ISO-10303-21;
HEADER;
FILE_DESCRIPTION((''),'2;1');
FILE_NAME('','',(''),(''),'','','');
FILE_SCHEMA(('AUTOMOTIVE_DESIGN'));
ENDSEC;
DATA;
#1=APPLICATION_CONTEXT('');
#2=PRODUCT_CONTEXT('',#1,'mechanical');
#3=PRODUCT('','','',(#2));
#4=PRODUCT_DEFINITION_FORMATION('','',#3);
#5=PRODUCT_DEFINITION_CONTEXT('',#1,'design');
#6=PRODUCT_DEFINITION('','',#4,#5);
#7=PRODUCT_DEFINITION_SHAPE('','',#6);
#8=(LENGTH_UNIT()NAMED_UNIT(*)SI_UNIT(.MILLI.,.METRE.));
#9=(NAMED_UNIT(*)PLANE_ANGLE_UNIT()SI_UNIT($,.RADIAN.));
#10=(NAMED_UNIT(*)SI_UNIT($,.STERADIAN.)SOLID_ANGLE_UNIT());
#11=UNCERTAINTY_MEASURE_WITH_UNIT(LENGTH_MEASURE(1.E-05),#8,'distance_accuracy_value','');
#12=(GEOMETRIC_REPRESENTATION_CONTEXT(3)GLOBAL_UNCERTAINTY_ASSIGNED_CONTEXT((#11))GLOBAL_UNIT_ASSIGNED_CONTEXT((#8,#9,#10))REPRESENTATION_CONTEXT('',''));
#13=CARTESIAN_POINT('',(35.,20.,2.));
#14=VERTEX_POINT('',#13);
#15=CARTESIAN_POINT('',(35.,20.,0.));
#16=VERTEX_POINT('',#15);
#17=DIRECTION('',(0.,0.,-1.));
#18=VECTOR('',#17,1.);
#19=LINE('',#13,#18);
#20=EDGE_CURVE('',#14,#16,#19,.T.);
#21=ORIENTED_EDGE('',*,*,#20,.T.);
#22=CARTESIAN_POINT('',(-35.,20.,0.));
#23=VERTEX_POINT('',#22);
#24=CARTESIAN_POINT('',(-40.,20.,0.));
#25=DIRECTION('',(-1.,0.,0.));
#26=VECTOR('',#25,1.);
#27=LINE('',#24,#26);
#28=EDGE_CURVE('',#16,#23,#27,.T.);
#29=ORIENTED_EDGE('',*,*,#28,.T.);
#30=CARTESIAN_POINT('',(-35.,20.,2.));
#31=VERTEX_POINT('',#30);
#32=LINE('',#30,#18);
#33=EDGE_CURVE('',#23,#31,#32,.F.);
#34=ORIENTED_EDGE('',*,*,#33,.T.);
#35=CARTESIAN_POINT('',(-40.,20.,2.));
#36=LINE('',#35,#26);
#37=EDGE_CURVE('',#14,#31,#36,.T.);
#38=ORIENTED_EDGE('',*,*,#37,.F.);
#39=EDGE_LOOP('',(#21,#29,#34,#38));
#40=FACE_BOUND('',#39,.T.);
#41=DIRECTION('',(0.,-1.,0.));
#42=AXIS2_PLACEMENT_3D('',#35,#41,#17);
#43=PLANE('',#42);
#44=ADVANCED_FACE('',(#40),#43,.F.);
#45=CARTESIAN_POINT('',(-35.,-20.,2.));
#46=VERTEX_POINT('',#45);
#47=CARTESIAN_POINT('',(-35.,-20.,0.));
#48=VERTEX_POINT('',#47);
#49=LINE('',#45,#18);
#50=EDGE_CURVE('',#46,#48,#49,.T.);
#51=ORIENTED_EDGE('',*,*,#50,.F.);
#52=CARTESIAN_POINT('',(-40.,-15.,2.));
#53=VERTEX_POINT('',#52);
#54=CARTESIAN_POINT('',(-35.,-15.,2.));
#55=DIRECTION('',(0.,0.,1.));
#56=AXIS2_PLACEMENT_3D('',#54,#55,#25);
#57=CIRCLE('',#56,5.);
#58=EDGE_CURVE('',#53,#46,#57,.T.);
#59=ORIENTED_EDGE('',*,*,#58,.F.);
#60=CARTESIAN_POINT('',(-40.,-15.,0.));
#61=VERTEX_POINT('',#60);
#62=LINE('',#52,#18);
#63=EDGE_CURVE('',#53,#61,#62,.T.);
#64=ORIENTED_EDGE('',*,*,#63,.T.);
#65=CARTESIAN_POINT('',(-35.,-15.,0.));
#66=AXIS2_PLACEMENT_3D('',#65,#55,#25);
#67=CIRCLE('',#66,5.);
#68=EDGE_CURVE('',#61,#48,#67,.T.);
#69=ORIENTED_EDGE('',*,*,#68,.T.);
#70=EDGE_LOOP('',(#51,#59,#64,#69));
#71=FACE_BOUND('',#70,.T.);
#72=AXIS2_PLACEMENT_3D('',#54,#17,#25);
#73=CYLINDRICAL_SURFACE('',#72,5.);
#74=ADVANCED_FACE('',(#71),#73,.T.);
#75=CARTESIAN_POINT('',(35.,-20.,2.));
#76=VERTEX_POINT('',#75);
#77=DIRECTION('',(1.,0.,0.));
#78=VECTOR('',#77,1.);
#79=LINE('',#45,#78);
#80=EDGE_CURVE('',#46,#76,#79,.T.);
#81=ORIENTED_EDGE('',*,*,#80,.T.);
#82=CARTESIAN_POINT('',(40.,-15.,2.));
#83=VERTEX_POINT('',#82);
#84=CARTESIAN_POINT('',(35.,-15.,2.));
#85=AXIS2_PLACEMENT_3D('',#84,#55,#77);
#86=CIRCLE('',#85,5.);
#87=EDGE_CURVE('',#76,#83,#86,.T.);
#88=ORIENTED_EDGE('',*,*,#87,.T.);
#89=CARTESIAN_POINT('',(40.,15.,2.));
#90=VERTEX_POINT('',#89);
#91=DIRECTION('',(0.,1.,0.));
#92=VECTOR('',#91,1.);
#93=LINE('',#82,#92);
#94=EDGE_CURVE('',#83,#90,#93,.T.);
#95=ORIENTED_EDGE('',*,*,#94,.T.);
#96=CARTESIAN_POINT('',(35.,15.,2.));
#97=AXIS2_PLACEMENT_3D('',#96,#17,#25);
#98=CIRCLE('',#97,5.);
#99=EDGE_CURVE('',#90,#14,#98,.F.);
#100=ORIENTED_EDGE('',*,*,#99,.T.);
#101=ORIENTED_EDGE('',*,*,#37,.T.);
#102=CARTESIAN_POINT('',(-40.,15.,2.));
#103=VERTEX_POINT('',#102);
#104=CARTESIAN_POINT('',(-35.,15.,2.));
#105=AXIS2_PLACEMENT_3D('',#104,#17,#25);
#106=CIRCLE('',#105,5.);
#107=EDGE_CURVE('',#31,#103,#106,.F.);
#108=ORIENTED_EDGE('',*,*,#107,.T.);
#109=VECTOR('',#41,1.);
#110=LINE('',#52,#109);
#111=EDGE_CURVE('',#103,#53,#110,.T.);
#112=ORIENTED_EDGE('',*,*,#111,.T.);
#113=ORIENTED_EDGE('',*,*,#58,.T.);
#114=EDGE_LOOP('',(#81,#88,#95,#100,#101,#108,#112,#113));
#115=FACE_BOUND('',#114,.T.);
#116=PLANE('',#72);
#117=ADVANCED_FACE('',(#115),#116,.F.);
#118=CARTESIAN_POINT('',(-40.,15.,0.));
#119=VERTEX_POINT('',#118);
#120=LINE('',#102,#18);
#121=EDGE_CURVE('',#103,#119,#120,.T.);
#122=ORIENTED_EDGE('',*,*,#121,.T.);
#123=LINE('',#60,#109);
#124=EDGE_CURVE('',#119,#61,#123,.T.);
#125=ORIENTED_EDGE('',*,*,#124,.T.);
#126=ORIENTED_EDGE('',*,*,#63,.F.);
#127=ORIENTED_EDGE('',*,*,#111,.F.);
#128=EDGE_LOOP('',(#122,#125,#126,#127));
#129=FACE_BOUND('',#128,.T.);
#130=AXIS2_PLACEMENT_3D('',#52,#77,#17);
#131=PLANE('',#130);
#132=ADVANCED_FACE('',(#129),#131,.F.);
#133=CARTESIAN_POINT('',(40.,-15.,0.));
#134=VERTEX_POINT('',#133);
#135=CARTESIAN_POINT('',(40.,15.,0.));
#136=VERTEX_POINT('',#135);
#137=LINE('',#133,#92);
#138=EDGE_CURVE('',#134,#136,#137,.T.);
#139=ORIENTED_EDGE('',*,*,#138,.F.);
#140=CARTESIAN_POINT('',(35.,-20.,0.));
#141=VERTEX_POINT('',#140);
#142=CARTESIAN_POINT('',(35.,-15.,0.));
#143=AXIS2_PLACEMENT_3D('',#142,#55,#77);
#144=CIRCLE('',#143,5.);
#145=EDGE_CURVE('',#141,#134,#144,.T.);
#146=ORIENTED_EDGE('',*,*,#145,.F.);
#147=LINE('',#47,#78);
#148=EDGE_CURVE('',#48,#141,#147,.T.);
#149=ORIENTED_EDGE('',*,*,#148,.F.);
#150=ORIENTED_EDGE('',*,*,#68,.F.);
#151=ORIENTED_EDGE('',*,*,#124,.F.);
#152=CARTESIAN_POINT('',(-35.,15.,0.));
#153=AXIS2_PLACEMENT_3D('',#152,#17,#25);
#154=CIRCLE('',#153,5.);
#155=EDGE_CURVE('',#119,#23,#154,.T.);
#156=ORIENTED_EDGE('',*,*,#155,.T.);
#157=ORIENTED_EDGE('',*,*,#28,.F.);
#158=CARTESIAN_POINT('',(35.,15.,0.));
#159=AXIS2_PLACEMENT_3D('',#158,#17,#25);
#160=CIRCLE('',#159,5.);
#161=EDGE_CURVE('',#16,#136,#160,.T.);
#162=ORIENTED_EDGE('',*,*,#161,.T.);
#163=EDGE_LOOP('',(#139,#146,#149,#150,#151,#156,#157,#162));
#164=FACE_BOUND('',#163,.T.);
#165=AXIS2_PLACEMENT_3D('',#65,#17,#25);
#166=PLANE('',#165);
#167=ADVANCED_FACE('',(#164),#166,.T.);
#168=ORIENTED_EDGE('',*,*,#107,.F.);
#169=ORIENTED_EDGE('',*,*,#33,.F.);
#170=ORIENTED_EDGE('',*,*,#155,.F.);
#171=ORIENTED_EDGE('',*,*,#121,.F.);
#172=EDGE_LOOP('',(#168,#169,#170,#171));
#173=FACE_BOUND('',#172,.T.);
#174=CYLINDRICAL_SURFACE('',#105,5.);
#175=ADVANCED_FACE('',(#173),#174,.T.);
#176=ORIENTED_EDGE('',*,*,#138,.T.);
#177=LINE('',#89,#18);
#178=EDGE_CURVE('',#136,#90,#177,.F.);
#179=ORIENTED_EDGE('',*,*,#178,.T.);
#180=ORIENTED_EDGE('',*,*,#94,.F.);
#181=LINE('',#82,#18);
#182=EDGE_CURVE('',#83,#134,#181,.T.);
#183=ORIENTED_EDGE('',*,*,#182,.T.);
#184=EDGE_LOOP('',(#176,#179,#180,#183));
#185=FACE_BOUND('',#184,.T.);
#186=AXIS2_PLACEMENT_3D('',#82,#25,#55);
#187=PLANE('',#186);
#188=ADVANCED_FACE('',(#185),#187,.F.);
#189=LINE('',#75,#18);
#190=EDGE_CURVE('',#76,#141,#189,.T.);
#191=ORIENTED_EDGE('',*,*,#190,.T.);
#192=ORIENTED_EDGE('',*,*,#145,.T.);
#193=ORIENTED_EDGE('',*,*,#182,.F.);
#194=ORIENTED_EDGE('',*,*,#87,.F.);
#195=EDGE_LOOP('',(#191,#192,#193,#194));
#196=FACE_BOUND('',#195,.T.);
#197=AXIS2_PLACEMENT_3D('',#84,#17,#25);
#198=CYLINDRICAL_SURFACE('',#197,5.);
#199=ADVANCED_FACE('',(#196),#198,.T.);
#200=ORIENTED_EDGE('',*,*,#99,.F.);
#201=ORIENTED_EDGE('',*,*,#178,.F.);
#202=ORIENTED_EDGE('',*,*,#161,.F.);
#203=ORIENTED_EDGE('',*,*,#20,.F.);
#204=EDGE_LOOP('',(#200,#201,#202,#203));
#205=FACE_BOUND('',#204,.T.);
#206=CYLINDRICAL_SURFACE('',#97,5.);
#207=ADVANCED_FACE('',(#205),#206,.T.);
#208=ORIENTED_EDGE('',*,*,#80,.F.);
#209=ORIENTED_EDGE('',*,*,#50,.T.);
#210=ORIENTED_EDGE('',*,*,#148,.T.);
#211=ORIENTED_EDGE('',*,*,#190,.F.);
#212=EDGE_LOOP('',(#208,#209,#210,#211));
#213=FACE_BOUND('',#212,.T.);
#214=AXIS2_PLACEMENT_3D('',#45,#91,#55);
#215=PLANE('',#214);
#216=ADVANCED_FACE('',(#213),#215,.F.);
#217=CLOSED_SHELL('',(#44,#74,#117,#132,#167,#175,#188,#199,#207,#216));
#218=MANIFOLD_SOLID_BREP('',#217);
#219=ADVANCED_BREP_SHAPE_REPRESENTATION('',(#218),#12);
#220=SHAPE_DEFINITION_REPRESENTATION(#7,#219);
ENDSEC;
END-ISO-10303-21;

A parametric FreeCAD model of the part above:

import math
import FreeCAD as App
import Part
import Sketcher

V = App.Vector
Q = App.Units.Quantity


def edges_at(feature, points):
    """Names of the edges that pass closest to the given points."""
    edges = feature.Shape.Edges
    near = lambda p: min(range(len(edges)), key=lambda i: edges[i].distToShape(Part.Vertex(*p))[0])
    return sorted({f"Edge{near(p) + 1}" for p in points})

doc = App.newDocument("Part")
body = doc.addObject("PartDesign::Body", "Body")

# Sketch on XY plane
sketch1 = doc.addObject("Sketcher::SketchObject", "Sketch")
body.addObject(sketch1)
sketch1.AttachmentSupport = (doc.XY_Plane, [""])
sketch1.MapMode = "FlatFace"
sketch1.addGeometry([
    Part.LineSegment(V(-35, -20, 0), V(35, -20, 0)),  # 0
    Part.ArcOfCircle(Part.Circle(V(35, -15, 0), V(0, 0, 1), 5), math.radians(-90), math.radians(0)),  # 1
    Part.LineSegment(V(40, -15, 0), V(40, 20, 0)),  # 2
    Part.LineSegment(V(40, 20, 0), V(-40, 20, 0)),  # 3
    Part.LineSegment(V(-40, 20, 0), V(-40, -15, 0)),  # 4
    Part.ArcOfCircle(Part.Circle(V(-35, -15, 0), V(0, 0, 1), 5), math.radians(180), math.radians(270)),  # 5
], False)
sketch1.addConstraint([
    Sketcher.Constraint("Tangent", 0, 2, 1, 1),
    Sketcher.Constraint("Tangent", 1, 2, 2, 1),
    Sketcher.Constraint("Coincident", 2, 2, 3, 1),
    Sketcher.Constraint("Coincident", 3, 2, 4, 1),
    Sketcher.Constraint("Tangent", 4, 2, 5, 1),
    Sketcher.Constraint("Tangent", 5, 2, 0, 1),
    Sketcher.Constraint("Horizontal", 0),
    Sketcher.Constraint("Vertical", 2),
    Sketcher.Constraint("Horizontal", 3),
    Sketcher.Constraint("Vertical", 4),
    Sketcher.Constraint("Equal", 1, 5),
    Sketcher.Constraint("Radius", 1, Q("5 mm")),
    Sketcher.Constraint("DistanceX", 0, 1, 0, 2, Q("70 mm")),
    Sketcher.Constraint("DistanceY", 2, 1, 2, 2, Q("35 mm")),
    Sketcher.Constraint("DistanceX", -1, 1, 1, 3, Q("35 mm")),
    Sketcher.Constraint("DistanceY", 1, 3, -1, 1, Q("15 mm")),
])
pad1 = doc.addObject("PartDesign::Pad", "Pad")
body.addObject(pad1)
pad1.Profile = sketch1
pad1.Length = 2
doc.recompute()

fillet = doc.addObject("PartDesign::Fillet", "Fillet")
body.addObject(fillet)
fillet.Base = (pad1, edges_at(pad1, [(-40, 20, 1), (40, 20, 1)]))
fillet.Radius = 5

doc.recompute()
